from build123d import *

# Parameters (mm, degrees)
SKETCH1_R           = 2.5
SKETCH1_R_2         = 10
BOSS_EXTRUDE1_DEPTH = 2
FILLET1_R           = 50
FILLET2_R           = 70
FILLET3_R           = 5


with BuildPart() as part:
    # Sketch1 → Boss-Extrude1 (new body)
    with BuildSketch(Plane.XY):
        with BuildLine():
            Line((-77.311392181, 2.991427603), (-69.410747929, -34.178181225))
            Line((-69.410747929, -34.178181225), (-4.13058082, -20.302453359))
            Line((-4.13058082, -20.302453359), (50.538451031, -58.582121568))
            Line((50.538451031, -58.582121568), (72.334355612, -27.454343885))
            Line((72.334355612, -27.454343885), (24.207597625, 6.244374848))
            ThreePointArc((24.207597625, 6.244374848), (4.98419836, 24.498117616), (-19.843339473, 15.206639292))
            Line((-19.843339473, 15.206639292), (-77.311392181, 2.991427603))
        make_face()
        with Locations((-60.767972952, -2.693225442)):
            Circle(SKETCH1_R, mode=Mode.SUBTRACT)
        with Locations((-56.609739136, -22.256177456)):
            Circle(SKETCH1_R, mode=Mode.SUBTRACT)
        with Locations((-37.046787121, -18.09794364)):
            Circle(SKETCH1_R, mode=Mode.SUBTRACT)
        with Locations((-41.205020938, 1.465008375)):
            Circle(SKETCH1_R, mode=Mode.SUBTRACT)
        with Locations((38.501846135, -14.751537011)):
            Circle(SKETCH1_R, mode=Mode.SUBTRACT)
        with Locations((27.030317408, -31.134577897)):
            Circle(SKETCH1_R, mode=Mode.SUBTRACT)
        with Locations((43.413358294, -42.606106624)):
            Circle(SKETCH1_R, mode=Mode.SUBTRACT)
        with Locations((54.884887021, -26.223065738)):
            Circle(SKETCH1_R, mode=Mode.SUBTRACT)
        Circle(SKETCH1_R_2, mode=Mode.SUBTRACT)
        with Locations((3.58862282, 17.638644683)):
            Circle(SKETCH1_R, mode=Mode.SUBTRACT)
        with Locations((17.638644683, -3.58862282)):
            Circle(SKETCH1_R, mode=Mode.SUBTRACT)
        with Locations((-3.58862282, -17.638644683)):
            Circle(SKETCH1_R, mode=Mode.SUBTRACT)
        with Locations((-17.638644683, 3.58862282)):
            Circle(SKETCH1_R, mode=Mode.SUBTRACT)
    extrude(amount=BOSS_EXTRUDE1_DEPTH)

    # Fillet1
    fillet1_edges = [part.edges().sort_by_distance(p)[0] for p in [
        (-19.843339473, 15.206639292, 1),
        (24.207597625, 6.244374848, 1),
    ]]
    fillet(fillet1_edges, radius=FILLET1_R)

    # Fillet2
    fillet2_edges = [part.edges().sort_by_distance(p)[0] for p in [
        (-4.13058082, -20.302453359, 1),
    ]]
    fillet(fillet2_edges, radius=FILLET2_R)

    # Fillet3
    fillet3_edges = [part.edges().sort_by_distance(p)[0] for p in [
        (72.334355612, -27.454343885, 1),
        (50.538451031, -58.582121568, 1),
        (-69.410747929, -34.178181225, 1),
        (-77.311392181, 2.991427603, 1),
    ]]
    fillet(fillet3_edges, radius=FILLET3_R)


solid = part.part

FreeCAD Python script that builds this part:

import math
import FreeCAD as App
import Part
import Sketcher
from FreeCAD import Vector
Q = App.Units.Quantity


def edges_at(feature, points):
    """Names of the edges that pass closest to the given points."""
    edges = feature.Shape.Edges
    near = lambda p: min(range(len(edges)), key=lambda i: edges[i].distToShape(Part.Vertex(*p))[0])
    return sorted({f"Edge{near(p) + 1}" for p in points})

doc = App.newDocument("Part")
body = doc.addObject("PartDesign::Body", "Body")

# Sketch on XY plane
sketch1 = doc.addObject("Sketcher::SketchObject", "Sketch")
body.addObject(sketch1)
sketch1.AttachmentSupport = (doc.XY_Plane, [""])
sketch1.MapMode = "FlatFace"
sketch1.addGeometry(Part.LineSegment(Vector(-77.3, 3, 0), Vector(-69.4, -34.2, 0)), False)
sketch1.addGeometry(Part.LineSegment(Vector(-69.4, -34.2, 0), Vector(-4.1, -20.3, 0)), False)
sketch1.addGeometry(Part.LineSegment(Vector(-4.1, -20.3, 0), Vector(50.5, -58.6, 0)), False)
sketch1.addGeometry(Part.LineSegment(Vector(50.5, -58.6, 0), Vector(72.3, -27.5, 0)), False)
sketch1.addGeometry(Part.LineSegment(Vector(72.3, -27.5, 0), Vector(24.2, 6.2, 0)), False)
sketch1.addGeometry(Part.ArcOfCircle(Part.Circle(Vector(0, 0, 0), Vector(0, 0, 1), 25), math.radians(14), math.radians(143)), False)
sketch1.addGeometry(Part.LineSegment(Vector(-19.8, 15.2, 0), Vector(-77.3, 3, 0)), False)
sketch1.addGeometry(Part.Circle(Vector(-56.6, -22.3, 0), Vector(0, 0, 1), 2.5), False)
sketch1.addGeometry(Part.Circle(Vector(-37, -18.1, 0), Vector(0, 0, 1), 2.5), False)
sketch1.addGeometry(Part.Circle(Vector(-3.6, -17.6, 0), Vector(0, 0, 1), 2.5), False)
sketch1.addGeometry(Part.Circle(Vector(27, -31.1, 0), Vector(0, 0, 1), 2.5), False)
sketch1.addGeometry(Part.Circle(Vector(43.4, -42.6, 0), Vector(0, 0, 1), 2.5), False)
sketch1.addGeometry(Part.Circle(Vector(54.9, -26.2, 0), Vector(0, 0, 1), 2.5), False)
sketch1.addGeometry(Part.Circle(Vector(38.5, -14.8, 0), Vector(0, 0, 1), 2.5), False)
sketch1.addGeometry(Part.Circle(Vector(-60.8, -2.7, 0), Vector(0, 0, 1), 2.5), False)
sketch1.addGeometry(Part.Circle(Vector(-41.2, 1.5, 0), Vector(0, 0, 1), 2.5), False)
sketch1.addGeometry(Part.Circle(Vector(-17.6, 3.6, 0), Vector(0, 0, 1), 2.5), False)
sketch1.addGeometry(Part.Circle(Vector(0, 0, 0), Vector(0, 0, 1), 10), False)
sketch1.addGeometry(Part.Circle(Vector(17.6, -3.6, 0), Vector(0, 0, 1), 2.5), False)
sketch1.addGeometry(Part.Circle(Vector(3.6, 17.6, 0), Vector(0, 0, 1), 2.5), False)
sketch1.addConstraint(Sketcher.Constraint("Coincident", 0, 2, 1, 1))
sketch1.addConstraint(Sketcher.Constraint("Coincident", 1, 2, 2, 1))
sketch1.addConstraint(Sketcher.Constraint("Coincident", 2, 2, 3, 1))
sketch1.addConstraint(Sketcher.Constraint("Coincident", 3, 2, 4, 1))
sketch1.addConstraint(Sketcher.Constraint("Coincident", 4, 2, 5, 1))
sketch1.addConstraint(Sketcher.Constraint("Coincident", 5, 2, 6, 1))
sketch1.addConstraint(Sketcher.Constraint("Coincident", 6, 2, 0, 1))
sketch1.addConstraint(Sketcher.Constraint("Coincident", 5, 3, -1, 1))
sketch1.addConstraint(Sketcher.Constraint("Coincident", 17, 3, -1, 1))
sketch1.addConstraint(Sketcher.Constraint("Equal", 7, 8))
sketch1.addConstraint(Sketcher.Constraint("Equal", 8, 9))
sketch1.addConstraint(Sketcher.Constraint("Equal", 9, 10))
sketch1.addConstraint(Sketcher.Constraint("Equal", 10, 11))
sketch1.addConstraint(Sketcher.Constraint("Equal", 11, 12))
sketch1.addConstraint(Sketcher.Constraint("Equal", 12, 13))
sketch1.addConstraint(Sketcher.Constraint("Equal", 13, 14))
sketch1.addConstraint(Sketcher.Constraint("Equal", 14, 15))
sketch1.addConstraint(Sketcher.Constraint("Equal", 15, 16))
sketch1.addConstraint(Sketcher.Constraint("Equal", 16, 18))
sketch1.addConstraint(Sketcher.Constraint("Equal", 18, 19))
sketch1.addConstraint(Sketcher.Constraint("Symmetric", 16, 3, 18, 3, -1, 1))
sketch1.addConstraint(Sketcher.Constraint("Symmetric", 9, 3, 19, 3, -1, 1))
sketch1.addConstraint(Sketcher.Constraint("Perpendicular", 0, 1))
sketch1.addConstraint(Sketcher.Constraint("Perpendicular", 2, 3))
sketch1.addConstraint(Sketcher.Constraint("Perpendicular", 3, 4))
sketch1.addConstraint(Sketcher.Constraint("Parallel", 1, 6))
sketch1.addConstraint(Sketcher.Constraint("Equal", 1, 2))
sketch1.addConstraint(Sketcher.Constraint("Equal", 0, 3))
sketch1.addConstraint(Sketcher.Constraint("Equal", 4, 6))
sketch1.addConstraint(Sketcher.Constraint("Diameter", 7, Q("5 mm")))
sketch1.addConstraint(Sketcher.Constraint("Diameter", 17, Q("20 mm")))
sketch1.addConstraint(Sketcher.Constraint("Radius", 5, Q("25 mm")))
sketch1.addConstraint(Sketcher.Constraint("Angle", 0, Q("-78 deg")))
sketch1.addConstraint(Sketcher.Constraint("Angle", 2, Q("-35 deg")))
sketch1.addConstraint(Sketcher.Constraint("Distance", 0, Q("38 mm")))
sketch1.addConstraint(Sketcher.Constraint("DistanceY", 8, 3, 9, 3, Q("0.459299 mm")))
sketch1.addConstraint(Sketcher.Constraint("DistanceY", 10, 3, 7, 3, Q("8.8784 mm")))
sketch1.addConstraint(Sketcher.Constraint("DistanceX", 15, 3, 9, 3, Q("37.616398 mm")))
sketch1.addConstraint(Sketcher.Constraint("DistanceX", 18, 3, 13, 3, Q("20.863201 mm")))
sketch1.addConstraint(Sketcher.Constraint("DistanceY", 2, 2, 18, 3, Q("54.993499 mm")))
sketch1.addConstraint(Sketcher.Constraint("DistanceX", 7, 3, -1, 1, Q("56.609739 mm")))
sketch1.addConstraint(Sketcher.Constraint("DistanceX", -1, 1, 11, 3, Q("43.413358 mm")))
sketch1.addConstraint(Sketcher.Constraint("DistanceX", 15, 3, -1, 1, Q("41.205021 mm")))
sketch1.addConstraint(Sketcher.Constraint("DistanceY", -1, 1, 15, 3, Q("1.465008 mm")))
sketch1.addConstraint(Sketcher.Constraint("DistanceY", 0, 2, -1, 1, Q("34.178181 mm")))
sketch1.addConstraint(Sketcher.Constraint("DistanceX", 1, 2, -1, 1, Q("4.130581 mm")))
sketch1.addConstraint(Sketcher.Constraint("DistanceX", 9, 3, 10, 3, Q("30.61894 mm")))
sketch1.addConstraint(Sketcher.Constraint("DistanceY", 11, 3, 10, 3, Q("11.471529 mm")))
sketch1.addConstraint(Sketcher.Constraint("DistanceY", 11, 3, 9, 3, Q("24.967462 mm")))
sketch1.addConstraint(Sketcher.Constraint("DistanceX", 11, 3, 12, 3, Q("11.471529 mm")))
sketch1.addConstraint(Sketcher.Constraint("DistanceY", 11, 3, 12, 3, Q("16.383041 mm")))
sketch1.addConstraint(Sketcher.Constraint("DistanceX", 13, 3, 12, 3, Q("16.383041 mm")))
sketch1.addConstraint(Sketcher.Constraint("DistanceY", 12, 3, 13, 3, Q("11.471529 mm")))
sketch1.addConstraint(Sketcher.Constraint("DistanceY", 8, 3, 14, 3, Q("15.404718 mm")))
sketch1.addConstraint(Sketcher.Constraint("DistanceX", 14, 3, 9, 3, Q("57.17935 mm")))
sketch1.addConstraint(Sketcher.Constraint("DistanceY", 14, 3, 16, 3, Q("6.281848 mm")))
sketch1.addConstraint(Sketcher.Constraint("DistanceX", 0, 2, 8, 3, Q("32.363961 mm")))
pad1 = doc.addObject("PartDesign::Pad", "Pad")
body.addObject(pad1)
pad1.Profile = sketch1
pad1.Length = 2
doc.recompute()

fillet = doc.addObject("PartDesign::Fillet", "Fillet")
body.addObject(fillet)
fillet.Base = (pad1, edges_at(pad1, [(-19.843, 15.207, 1), (24.208, 6.244, 1)]))
fillet.Radius = 50
doc.recompute()

fillet2 = doc.addObject("PartDesign::Fillet", "Fillet001")
body.addObject(fillet2)
fillet2.Base = (fillet, edges_at(fillet, [(-4.131, -20.302, 1)]))
fillet2.Radius = 70
doc.recompute()

fillet3 = doc.addObject("PartDesign::Fillet", "Fillet002")
body.addObject(fillet3)
fillet3.Base = (fillet2, edges_at(fillet2, [
    (72.334, -27.454, 1),
    (50.538, -58.582, 1),
    (-69.411, -34.178, 1),
    (-77.311, 2.991, 1),
]))
fillet3.Radius = 5

doc.recompute()
